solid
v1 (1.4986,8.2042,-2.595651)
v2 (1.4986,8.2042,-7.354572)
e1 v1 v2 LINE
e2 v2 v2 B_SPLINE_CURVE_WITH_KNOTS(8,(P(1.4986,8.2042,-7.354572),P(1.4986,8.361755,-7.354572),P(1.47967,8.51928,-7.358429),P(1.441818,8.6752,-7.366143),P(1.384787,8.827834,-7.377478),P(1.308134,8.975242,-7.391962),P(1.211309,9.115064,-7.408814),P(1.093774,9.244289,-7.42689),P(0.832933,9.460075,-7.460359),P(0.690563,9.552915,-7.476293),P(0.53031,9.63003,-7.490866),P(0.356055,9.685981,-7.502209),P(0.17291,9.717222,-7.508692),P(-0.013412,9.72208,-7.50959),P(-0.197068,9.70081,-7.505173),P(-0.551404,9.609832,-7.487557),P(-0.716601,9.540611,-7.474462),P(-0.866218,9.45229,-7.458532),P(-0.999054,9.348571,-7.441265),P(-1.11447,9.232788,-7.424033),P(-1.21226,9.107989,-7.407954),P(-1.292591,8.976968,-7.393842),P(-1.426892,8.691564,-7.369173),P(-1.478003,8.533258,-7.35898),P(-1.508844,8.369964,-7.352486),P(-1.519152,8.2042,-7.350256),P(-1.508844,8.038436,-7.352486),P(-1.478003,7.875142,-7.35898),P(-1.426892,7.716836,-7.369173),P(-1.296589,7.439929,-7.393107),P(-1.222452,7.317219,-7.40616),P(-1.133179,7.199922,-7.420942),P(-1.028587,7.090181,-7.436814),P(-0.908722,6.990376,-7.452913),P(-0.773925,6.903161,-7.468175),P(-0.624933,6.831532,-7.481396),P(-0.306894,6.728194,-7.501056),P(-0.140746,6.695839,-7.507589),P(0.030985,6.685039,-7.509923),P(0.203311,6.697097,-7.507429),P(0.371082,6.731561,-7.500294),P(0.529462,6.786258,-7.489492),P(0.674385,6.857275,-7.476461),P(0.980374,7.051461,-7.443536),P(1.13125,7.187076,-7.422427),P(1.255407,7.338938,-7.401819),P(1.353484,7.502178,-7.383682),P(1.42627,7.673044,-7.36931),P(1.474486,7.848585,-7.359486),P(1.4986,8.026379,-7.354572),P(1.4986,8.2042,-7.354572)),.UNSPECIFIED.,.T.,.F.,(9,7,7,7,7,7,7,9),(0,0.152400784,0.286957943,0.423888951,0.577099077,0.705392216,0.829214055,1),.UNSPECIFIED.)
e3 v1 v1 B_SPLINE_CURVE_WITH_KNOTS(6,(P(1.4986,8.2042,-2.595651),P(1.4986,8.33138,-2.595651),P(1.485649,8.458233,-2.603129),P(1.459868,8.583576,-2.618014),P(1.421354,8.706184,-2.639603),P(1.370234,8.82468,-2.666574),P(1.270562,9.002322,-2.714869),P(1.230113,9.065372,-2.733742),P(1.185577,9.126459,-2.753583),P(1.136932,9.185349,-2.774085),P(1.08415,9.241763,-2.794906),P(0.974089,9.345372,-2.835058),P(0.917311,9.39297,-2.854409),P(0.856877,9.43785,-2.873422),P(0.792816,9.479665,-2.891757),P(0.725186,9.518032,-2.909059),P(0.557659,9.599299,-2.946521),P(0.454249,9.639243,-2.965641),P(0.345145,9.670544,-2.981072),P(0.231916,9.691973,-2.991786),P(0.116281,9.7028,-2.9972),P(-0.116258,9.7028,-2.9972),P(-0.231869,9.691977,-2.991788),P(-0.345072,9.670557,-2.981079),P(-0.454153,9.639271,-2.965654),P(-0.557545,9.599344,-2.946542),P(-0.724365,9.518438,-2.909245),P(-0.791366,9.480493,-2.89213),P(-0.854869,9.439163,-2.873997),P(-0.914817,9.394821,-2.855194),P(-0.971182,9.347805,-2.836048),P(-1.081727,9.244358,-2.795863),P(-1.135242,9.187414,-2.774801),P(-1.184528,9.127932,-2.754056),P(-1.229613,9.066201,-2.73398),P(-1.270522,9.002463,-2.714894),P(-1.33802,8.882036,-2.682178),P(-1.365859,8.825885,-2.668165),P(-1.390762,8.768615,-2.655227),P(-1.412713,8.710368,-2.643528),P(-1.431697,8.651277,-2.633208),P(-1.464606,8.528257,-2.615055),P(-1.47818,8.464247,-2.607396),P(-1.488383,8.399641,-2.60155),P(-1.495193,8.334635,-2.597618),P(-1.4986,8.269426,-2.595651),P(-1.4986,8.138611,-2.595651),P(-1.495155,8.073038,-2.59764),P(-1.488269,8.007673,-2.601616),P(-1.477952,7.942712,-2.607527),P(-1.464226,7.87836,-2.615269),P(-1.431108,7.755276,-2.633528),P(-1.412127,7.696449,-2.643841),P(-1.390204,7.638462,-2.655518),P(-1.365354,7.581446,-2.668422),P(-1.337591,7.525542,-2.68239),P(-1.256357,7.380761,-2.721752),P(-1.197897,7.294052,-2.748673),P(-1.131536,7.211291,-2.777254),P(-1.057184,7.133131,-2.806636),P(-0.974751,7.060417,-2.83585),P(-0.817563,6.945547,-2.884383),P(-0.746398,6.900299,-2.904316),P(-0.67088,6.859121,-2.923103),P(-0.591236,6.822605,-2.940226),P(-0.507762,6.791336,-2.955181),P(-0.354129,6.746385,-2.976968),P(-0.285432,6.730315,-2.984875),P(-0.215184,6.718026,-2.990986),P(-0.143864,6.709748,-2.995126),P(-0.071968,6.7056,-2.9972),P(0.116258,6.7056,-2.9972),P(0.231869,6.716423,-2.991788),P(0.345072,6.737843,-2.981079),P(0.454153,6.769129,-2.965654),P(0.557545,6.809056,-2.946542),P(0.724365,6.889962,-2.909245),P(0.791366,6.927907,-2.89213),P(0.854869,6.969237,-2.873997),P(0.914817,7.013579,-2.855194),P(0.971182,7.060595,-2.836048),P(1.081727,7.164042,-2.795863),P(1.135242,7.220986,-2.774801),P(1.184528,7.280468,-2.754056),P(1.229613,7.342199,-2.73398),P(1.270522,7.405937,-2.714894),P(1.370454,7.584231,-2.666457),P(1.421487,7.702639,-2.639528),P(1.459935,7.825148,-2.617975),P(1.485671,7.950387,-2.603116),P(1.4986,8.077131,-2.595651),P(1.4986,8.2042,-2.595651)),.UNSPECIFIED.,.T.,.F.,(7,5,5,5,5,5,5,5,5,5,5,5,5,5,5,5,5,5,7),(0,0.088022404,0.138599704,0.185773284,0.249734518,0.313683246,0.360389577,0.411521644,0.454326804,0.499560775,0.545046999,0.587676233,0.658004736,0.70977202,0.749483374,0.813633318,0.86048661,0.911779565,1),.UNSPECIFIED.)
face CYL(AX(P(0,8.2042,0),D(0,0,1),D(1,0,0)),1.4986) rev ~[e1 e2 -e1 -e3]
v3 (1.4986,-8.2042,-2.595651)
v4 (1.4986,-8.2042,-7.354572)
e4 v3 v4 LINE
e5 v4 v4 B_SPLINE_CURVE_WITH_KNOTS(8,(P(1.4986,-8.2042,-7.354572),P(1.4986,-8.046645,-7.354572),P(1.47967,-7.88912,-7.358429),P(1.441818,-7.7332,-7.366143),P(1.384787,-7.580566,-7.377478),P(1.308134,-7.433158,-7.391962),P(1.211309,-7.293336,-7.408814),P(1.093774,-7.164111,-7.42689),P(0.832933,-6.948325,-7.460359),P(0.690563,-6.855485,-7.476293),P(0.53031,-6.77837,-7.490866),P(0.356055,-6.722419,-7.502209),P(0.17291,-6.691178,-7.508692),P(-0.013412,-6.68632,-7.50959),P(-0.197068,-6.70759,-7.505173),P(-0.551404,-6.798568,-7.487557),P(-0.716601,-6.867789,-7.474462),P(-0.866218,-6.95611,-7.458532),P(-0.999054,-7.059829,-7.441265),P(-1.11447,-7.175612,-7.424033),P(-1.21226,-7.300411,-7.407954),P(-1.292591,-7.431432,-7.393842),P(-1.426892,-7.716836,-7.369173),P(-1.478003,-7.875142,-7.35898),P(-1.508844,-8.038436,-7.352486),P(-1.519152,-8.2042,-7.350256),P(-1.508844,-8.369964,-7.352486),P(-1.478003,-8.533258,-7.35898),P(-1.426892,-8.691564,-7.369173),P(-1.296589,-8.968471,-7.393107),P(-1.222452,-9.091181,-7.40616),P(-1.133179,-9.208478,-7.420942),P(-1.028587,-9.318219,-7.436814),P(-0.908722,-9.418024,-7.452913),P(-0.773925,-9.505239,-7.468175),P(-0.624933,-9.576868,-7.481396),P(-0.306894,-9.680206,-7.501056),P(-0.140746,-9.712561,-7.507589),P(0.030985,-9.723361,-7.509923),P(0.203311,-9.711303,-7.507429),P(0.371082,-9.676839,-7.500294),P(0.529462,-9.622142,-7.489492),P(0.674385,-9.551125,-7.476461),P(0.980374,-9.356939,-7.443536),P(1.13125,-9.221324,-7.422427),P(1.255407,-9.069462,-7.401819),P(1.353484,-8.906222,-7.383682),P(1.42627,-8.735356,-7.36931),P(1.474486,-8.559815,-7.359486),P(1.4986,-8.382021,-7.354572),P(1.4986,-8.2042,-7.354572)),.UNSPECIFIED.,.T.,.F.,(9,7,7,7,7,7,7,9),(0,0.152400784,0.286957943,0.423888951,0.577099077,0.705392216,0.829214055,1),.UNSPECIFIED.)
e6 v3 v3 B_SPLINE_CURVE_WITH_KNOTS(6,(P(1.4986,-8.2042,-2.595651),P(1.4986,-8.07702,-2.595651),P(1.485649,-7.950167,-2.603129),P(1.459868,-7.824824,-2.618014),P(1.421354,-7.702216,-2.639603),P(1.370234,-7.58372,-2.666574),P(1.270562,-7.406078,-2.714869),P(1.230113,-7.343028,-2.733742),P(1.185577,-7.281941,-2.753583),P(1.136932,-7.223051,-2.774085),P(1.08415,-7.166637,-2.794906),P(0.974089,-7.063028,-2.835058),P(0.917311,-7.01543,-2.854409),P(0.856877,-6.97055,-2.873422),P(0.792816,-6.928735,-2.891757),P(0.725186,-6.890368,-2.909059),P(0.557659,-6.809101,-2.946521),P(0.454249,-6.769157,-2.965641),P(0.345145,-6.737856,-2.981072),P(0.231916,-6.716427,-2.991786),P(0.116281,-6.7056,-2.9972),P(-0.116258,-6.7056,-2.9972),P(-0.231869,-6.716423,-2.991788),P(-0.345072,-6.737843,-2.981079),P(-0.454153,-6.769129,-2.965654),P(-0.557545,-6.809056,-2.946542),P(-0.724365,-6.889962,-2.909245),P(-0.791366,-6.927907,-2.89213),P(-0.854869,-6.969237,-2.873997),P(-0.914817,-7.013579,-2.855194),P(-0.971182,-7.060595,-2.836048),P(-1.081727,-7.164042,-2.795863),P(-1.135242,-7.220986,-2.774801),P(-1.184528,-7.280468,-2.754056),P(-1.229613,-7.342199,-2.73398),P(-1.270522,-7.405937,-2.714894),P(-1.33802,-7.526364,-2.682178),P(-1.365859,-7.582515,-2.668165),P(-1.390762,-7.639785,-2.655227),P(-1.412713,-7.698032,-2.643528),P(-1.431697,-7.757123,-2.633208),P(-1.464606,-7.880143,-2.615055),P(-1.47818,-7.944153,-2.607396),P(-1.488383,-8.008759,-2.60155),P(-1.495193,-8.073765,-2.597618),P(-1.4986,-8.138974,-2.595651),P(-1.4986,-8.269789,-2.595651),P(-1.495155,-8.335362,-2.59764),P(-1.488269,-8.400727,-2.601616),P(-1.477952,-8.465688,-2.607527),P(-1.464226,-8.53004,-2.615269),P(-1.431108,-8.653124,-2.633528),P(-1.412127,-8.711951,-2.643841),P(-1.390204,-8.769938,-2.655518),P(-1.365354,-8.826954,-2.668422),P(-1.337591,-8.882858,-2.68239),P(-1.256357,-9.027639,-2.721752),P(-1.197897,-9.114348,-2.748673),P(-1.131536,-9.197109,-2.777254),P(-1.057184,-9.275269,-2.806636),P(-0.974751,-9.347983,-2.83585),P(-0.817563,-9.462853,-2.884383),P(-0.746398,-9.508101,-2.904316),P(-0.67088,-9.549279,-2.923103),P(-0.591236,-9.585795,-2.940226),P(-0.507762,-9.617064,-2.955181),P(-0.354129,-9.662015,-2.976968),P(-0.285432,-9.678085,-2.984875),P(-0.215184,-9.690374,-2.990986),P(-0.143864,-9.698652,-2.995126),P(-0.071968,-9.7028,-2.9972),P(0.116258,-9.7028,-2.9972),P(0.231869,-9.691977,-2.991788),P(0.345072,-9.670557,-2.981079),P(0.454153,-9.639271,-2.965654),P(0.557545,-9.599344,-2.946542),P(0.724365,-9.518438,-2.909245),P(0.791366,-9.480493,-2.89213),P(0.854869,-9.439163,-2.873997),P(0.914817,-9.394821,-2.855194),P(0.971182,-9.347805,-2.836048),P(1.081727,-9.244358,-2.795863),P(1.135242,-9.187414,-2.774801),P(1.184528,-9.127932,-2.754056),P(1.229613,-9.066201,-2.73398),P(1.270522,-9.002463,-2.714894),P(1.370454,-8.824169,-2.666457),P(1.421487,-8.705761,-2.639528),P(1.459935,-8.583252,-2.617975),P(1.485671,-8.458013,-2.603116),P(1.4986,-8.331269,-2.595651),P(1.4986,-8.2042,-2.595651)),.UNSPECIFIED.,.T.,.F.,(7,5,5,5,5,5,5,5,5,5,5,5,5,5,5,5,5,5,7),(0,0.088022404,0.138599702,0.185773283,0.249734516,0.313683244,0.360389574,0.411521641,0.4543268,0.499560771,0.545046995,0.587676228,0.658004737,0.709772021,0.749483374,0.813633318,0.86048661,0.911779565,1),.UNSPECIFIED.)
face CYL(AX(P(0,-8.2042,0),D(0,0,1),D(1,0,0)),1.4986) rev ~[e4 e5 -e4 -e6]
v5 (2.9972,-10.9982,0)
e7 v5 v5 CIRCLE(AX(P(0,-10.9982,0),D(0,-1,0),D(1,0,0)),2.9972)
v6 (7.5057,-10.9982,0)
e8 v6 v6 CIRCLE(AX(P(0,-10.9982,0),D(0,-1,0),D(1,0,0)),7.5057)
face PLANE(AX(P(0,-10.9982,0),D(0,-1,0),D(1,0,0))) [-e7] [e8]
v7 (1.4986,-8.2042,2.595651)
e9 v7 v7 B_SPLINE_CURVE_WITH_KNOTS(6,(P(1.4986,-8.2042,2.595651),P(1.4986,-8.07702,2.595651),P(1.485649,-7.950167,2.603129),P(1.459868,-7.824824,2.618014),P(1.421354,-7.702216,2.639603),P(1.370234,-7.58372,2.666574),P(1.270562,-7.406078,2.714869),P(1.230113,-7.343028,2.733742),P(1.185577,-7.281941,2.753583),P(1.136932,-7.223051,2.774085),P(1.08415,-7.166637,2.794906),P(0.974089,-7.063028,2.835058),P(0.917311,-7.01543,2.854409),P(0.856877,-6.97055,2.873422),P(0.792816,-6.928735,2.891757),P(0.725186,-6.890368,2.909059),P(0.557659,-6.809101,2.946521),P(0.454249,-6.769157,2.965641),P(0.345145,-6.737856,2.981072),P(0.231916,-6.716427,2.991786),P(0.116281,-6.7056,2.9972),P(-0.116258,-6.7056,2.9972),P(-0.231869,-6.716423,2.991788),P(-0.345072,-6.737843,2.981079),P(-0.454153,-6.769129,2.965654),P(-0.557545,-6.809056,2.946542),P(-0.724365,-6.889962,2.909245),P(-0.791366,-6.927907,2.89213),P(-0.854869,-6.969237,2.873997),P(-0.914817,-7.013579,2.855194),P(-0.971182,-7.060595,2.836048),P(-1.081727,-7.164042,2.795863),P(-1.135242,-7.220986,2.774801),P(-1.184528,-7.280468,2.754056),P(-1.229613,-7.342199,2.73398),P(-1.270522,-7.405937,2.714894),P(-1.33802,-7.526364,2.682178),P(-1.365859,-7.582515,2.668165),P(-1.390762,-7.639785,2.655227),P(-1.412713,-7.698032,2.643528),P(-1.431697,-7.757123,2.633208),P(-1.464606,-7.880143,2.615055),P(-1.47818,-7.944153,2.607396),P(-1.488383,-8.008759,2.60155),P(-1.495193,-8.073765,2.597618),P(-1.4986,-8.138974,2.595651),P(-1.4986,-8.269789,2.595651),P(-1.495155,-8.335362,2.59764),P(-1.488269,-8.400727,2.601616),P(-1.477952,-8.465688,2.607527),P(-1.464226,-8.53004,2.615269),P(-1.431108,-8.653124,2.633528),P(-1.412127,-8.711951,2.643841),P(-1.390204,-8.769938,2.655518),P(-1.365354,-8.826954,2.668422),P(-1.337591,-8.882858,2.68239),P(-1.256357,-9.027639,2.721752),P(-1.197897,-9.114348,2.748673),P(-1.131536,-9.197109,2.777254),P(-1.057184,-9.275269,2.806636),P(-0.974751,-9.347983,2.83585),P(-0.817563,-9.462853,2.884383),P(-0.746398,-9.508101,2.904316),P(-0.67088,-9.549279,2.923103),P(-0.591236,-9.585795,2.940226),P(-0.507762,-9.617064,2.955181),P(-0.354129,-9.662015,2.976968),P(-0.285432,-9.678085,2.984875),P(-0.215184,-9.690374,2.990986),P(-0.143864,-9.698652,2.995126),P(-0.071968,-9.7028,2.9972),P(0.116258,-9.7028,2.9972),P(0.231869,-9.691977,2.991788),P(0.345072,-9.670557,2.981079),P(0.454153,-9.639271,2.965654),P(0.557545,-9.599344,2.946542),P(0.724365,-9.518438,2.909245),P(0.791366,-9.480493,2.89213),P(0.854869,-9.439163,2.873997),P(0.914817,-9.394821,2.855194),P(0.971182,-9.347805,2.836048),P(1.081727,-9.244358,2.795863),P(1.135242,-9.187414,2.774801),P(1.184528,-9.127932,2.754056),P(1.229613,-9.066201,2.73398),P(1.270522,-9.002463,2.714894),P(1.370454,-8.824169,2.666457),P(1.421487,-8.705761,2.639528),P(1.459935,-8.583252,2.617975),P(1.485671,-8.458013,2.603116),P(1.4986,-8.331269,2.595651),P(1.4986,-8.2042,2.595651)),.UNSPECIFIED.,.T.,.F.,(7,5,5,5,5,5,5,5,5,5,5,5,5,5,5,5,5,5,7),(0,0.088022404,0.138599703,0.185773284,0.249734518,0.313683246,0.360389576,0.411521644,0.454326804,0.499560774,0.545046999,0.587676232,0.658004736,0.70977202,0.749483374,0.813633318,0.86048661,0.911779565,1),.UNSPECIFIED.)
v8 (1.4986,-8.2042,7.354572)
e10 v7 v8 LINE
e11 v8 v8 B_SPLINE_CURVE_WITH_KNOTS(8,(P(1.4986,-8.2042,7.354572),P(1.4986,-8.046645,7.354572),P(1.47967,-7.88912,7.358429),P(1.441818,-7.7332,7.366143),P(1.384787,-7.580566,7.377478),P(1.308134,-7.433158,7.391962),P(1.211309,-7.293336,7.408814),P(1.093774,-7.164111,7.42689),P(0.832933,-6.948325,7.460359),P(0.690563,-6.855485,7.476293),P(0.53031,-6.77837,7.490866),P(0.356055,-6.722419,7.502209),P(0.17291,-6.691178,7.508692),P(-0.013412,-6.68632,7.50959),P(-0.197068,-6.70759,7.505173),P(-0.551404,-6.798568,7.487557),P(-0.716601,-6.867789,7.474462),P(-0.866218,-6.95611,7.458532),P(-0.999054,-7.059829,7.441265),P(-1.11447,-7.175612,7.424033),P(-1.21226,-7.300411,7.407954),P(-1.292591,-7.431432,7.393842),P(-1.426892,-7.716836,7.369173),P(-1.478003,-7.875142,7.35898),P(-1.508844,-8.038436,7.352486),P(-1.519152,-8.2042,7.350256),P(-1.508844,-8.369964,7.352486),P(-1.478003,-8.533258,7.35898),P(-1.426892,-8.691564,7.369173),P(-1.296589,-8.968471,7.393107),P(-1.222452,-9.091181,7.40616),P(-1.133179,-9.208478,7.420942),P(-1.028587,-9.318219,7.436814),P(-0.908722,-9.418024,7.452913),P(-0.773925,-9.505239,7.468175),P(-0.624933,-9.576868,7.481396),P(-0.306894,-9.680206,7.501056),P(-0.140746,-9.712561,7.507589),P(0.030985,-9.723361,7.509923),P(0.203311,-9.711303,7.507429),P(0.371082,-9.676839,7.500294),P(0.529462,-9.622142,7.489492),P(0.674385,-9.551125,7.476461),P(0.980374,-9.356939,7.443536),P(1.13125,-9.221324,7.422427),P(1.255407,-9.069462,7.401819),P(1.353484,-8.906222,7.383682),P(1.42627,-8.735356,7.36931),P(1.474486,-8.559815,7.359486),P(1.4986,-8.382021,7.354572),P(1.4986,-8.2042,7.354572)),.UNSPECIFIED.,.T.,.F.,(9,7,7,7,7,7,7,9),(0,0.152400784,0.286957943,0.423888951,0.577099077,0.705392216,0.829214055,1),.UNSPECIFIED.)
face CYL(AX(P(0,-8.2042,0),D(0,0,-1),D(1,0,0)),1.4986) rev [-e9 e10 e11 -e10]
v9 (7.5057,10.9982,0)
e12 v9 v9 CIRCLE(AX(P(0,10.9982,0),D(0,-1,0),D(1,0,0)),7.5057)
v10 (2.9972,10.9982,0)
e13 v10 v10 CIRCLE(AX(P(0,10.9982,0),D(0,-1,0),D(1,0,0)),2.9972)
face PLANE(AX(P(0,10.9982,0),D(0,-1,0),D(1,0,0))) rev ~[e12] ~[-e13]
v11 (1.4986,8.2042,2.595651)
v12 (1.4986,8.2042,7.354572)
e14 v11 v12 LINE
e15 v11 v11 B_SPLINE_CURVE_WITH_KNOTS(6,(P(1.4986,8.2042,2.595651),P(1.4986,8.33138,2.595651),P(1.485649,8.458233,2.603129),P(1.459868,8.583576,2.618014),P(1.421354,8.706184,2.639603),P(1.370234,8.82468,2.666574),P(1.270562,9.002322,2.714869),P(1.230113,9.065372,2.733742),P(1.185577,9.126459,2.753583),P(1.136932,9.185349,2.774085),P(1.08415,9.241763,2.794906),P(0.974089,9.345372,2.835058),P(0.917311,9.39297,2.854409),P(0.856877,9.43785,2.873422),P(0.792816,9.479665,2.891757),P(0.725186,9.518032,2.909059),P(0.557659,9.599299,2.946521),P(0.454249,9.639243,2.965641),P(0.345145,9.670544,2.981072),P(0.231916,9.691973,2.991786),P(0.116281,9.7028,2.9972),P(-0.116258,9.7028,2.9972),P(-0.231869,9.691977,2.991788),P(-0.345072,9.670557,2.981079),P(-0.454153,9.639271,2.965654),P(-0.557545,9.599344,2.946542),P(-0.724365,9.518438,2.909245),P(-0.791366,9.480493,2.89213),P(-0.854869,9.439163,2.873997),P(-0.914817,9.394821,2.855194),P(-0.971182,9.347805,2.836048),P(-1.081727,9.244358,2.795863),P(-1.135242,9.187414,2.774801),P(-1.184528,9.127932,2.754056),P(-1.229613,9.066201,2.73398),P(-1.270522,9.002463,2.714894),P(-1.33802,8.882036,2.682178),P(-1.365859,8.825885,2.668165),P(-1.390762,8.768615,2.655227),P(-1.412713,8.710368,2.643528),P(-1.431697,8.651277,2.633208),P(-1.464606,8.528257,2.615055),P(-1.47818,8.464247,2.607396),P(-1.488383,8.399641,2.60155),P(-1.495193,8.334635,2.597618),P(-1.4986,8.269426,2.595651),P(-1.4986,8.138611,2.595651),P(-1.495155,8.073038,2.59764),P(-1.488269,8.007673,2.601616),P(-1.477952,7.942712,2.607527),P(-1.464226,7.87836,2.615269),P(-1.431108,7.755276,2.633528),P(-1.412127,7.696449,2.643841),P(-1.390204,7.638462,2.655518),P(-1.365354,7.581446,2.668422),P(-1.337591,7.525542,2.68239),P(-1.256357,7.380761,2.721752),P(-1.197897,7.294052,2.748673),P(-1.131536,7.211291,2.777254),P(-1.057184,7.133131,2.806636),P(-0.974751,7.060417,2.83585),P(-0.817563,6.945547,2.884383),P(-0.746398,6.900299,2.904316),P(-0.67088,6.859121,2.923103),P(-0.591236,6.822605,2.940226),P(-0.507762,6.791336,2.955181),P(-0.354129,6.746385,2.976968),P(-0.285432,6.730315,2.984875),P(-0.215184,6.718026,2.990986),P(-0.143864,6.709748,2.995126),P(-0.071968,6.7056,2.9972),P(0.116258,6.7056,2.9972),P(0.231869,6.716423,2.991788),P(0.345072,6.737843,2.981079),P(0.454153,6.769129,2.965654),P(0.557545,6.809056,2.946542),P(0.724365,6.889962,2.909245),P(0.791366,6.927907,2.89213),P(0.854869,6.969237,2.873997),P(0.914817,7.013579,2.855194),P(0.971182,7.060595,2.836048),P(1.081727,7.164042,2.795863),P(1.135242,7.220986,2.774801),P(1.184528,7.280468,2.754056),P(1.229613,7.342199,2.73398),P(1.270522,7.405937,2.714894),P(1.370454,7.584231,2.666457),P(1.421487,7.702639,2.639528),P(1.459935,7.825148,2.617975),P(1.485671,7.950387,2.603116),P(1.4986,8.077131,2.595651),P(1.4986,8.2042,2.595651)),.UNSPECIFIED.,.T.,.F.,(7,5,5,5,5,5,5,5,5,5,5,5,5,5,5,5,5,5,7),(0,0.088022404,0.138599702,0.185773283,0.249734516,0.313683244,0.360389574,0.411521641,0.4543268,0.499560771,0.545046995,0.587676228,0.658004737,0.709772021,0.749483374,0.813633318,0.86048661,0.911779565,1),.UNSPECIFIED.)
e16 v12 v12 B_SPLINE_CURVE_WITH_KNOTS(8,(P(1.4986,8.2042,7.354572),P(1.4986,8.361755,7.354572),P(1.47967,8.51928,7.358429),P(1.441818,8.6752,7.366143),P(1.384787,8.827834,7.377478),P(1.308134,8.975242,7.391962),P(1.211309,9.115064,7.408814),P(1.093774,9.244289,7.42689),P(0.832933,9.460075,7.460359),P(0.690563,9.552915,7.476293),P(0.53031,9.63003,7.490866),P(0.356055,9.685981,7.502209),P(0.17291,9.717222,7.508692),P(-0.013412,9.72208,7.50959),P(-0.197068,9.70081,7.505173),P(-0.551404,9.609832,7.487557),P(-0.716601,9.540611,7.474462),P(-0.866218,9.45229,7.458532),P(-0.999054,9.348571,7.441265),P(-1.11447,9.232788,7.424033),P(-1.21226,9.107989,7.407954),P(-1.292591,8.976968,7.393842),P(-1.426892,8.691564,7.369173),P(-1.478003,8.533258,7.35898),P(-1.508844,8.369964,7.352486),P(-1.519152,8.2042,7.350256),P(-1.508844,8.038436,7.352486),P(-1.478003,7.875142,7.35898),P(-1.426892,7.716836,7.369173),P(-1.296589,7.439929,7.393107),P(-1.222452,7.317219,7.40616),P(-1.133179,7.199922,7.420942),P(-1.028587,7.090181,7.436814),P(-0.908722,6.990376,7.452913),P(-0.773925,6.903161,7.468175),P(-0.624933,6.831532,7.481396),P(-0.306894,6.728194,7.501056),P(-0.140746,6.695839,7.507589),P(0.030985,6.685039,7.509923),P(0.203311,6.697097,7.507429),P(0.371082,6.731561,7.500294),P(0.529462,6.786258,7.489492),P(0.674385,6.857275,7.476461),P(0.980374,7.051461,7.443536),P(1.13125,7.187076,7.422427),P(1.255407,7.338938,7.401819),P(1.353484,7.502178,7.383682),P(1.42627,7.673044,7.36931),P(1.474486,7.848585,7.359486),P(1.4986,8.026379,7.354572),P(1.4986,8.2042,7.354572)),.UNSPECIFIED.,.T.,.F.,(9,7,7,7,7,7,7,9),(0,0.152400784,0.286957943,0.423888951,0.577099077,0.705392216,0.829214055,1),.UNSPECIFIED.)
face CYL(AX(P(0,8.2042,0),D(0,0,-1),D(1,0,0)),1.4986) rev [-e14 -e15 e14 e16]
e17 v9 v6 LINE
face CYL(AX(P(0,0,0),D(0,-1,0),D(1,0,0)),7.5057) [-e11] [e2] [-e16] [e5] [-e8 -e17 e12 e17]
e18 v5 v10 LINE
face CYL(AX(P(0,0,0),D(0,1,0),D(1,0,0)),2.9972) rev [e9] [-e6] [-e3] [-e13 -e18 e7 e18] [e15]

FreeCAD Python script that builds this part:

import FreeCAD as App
import Part
import Sketcher

V = App.Vector
Q = App.Units.Quantity

doc = App.newDocument("Part")
body = doc.addObject("PartDesign::Body", "Body")

# Sketch on XZ plane
sketch1 = body.newObject("Sketcher::SketchObject", "Sketch")
sketch1.AttachmentSupport = (doc.getObject("XZ_Plane"), [""])
sketch1.MapMode = "FlatFace"
sketch1.addGeometry([
    Part.Circle(V(0, 0, 0), V(0, 0, 1), 7.5057),
    Part.Circle(V(0, 0, 0), V(0, 0, 1), 2.9972),
], False)
sketch1.addConstraint([
    Sketcher.Constraint("Coincident", 0, 3, -1, 1),
    Sketcher.Constraint("Coincident", 1, 3, -1, 1),
    Sketcher.Constraint("Diameter", 0, Q("0.591 in")),
    Sketcher.Constraint("Diameter", 1, Q("0.236 in")),
])
pad1 = body.newObject("PartDesign::Pad", "Pad")
pad1.Profile = sketch1
pad1.Length = Q("0.866 in")
pad1.Midplane = True

# Sketch on XY plane
sketch2 = body.newObject("Sketcher::SketchObject", "Sketch001")
sketch2.AttachmentSupport = (doc.getObject("XY_Plane"), [""])
sketch2.MapMode = "FlatFace"
sketch2.addGeometry([
    Part.Circle(V(0, 8.2042, 0), V(0, 0, 1), 1.4986),
    Part.Circle(V(0, -8.2042, 0), V(0, 0, 1), 1.4986),
], False)
sketch2.addConstraint([
    Sketcher.Constraint("Equal", 0, 1),
    Sketcher.Constraint("Symmetric", 0, 3, 1, 3, -1, 1),
    Sketcher.Constraint("PointOnObject", 0, 3, -2),
    Sketcher.Constraint("Diameter", 0, Q("0.118 in")),
    Sketcher.Constraint("DistanceY", -1, 1, 0, 3, Q("0.323 in")),
])
pocket1 = body.newObject("PartDesign::Pocket", "Pocket")
pocket1.Profile = sketch2
pocket1.Type = "ThroughAll"
pocket1.Midplane = True

doc.recompute()
